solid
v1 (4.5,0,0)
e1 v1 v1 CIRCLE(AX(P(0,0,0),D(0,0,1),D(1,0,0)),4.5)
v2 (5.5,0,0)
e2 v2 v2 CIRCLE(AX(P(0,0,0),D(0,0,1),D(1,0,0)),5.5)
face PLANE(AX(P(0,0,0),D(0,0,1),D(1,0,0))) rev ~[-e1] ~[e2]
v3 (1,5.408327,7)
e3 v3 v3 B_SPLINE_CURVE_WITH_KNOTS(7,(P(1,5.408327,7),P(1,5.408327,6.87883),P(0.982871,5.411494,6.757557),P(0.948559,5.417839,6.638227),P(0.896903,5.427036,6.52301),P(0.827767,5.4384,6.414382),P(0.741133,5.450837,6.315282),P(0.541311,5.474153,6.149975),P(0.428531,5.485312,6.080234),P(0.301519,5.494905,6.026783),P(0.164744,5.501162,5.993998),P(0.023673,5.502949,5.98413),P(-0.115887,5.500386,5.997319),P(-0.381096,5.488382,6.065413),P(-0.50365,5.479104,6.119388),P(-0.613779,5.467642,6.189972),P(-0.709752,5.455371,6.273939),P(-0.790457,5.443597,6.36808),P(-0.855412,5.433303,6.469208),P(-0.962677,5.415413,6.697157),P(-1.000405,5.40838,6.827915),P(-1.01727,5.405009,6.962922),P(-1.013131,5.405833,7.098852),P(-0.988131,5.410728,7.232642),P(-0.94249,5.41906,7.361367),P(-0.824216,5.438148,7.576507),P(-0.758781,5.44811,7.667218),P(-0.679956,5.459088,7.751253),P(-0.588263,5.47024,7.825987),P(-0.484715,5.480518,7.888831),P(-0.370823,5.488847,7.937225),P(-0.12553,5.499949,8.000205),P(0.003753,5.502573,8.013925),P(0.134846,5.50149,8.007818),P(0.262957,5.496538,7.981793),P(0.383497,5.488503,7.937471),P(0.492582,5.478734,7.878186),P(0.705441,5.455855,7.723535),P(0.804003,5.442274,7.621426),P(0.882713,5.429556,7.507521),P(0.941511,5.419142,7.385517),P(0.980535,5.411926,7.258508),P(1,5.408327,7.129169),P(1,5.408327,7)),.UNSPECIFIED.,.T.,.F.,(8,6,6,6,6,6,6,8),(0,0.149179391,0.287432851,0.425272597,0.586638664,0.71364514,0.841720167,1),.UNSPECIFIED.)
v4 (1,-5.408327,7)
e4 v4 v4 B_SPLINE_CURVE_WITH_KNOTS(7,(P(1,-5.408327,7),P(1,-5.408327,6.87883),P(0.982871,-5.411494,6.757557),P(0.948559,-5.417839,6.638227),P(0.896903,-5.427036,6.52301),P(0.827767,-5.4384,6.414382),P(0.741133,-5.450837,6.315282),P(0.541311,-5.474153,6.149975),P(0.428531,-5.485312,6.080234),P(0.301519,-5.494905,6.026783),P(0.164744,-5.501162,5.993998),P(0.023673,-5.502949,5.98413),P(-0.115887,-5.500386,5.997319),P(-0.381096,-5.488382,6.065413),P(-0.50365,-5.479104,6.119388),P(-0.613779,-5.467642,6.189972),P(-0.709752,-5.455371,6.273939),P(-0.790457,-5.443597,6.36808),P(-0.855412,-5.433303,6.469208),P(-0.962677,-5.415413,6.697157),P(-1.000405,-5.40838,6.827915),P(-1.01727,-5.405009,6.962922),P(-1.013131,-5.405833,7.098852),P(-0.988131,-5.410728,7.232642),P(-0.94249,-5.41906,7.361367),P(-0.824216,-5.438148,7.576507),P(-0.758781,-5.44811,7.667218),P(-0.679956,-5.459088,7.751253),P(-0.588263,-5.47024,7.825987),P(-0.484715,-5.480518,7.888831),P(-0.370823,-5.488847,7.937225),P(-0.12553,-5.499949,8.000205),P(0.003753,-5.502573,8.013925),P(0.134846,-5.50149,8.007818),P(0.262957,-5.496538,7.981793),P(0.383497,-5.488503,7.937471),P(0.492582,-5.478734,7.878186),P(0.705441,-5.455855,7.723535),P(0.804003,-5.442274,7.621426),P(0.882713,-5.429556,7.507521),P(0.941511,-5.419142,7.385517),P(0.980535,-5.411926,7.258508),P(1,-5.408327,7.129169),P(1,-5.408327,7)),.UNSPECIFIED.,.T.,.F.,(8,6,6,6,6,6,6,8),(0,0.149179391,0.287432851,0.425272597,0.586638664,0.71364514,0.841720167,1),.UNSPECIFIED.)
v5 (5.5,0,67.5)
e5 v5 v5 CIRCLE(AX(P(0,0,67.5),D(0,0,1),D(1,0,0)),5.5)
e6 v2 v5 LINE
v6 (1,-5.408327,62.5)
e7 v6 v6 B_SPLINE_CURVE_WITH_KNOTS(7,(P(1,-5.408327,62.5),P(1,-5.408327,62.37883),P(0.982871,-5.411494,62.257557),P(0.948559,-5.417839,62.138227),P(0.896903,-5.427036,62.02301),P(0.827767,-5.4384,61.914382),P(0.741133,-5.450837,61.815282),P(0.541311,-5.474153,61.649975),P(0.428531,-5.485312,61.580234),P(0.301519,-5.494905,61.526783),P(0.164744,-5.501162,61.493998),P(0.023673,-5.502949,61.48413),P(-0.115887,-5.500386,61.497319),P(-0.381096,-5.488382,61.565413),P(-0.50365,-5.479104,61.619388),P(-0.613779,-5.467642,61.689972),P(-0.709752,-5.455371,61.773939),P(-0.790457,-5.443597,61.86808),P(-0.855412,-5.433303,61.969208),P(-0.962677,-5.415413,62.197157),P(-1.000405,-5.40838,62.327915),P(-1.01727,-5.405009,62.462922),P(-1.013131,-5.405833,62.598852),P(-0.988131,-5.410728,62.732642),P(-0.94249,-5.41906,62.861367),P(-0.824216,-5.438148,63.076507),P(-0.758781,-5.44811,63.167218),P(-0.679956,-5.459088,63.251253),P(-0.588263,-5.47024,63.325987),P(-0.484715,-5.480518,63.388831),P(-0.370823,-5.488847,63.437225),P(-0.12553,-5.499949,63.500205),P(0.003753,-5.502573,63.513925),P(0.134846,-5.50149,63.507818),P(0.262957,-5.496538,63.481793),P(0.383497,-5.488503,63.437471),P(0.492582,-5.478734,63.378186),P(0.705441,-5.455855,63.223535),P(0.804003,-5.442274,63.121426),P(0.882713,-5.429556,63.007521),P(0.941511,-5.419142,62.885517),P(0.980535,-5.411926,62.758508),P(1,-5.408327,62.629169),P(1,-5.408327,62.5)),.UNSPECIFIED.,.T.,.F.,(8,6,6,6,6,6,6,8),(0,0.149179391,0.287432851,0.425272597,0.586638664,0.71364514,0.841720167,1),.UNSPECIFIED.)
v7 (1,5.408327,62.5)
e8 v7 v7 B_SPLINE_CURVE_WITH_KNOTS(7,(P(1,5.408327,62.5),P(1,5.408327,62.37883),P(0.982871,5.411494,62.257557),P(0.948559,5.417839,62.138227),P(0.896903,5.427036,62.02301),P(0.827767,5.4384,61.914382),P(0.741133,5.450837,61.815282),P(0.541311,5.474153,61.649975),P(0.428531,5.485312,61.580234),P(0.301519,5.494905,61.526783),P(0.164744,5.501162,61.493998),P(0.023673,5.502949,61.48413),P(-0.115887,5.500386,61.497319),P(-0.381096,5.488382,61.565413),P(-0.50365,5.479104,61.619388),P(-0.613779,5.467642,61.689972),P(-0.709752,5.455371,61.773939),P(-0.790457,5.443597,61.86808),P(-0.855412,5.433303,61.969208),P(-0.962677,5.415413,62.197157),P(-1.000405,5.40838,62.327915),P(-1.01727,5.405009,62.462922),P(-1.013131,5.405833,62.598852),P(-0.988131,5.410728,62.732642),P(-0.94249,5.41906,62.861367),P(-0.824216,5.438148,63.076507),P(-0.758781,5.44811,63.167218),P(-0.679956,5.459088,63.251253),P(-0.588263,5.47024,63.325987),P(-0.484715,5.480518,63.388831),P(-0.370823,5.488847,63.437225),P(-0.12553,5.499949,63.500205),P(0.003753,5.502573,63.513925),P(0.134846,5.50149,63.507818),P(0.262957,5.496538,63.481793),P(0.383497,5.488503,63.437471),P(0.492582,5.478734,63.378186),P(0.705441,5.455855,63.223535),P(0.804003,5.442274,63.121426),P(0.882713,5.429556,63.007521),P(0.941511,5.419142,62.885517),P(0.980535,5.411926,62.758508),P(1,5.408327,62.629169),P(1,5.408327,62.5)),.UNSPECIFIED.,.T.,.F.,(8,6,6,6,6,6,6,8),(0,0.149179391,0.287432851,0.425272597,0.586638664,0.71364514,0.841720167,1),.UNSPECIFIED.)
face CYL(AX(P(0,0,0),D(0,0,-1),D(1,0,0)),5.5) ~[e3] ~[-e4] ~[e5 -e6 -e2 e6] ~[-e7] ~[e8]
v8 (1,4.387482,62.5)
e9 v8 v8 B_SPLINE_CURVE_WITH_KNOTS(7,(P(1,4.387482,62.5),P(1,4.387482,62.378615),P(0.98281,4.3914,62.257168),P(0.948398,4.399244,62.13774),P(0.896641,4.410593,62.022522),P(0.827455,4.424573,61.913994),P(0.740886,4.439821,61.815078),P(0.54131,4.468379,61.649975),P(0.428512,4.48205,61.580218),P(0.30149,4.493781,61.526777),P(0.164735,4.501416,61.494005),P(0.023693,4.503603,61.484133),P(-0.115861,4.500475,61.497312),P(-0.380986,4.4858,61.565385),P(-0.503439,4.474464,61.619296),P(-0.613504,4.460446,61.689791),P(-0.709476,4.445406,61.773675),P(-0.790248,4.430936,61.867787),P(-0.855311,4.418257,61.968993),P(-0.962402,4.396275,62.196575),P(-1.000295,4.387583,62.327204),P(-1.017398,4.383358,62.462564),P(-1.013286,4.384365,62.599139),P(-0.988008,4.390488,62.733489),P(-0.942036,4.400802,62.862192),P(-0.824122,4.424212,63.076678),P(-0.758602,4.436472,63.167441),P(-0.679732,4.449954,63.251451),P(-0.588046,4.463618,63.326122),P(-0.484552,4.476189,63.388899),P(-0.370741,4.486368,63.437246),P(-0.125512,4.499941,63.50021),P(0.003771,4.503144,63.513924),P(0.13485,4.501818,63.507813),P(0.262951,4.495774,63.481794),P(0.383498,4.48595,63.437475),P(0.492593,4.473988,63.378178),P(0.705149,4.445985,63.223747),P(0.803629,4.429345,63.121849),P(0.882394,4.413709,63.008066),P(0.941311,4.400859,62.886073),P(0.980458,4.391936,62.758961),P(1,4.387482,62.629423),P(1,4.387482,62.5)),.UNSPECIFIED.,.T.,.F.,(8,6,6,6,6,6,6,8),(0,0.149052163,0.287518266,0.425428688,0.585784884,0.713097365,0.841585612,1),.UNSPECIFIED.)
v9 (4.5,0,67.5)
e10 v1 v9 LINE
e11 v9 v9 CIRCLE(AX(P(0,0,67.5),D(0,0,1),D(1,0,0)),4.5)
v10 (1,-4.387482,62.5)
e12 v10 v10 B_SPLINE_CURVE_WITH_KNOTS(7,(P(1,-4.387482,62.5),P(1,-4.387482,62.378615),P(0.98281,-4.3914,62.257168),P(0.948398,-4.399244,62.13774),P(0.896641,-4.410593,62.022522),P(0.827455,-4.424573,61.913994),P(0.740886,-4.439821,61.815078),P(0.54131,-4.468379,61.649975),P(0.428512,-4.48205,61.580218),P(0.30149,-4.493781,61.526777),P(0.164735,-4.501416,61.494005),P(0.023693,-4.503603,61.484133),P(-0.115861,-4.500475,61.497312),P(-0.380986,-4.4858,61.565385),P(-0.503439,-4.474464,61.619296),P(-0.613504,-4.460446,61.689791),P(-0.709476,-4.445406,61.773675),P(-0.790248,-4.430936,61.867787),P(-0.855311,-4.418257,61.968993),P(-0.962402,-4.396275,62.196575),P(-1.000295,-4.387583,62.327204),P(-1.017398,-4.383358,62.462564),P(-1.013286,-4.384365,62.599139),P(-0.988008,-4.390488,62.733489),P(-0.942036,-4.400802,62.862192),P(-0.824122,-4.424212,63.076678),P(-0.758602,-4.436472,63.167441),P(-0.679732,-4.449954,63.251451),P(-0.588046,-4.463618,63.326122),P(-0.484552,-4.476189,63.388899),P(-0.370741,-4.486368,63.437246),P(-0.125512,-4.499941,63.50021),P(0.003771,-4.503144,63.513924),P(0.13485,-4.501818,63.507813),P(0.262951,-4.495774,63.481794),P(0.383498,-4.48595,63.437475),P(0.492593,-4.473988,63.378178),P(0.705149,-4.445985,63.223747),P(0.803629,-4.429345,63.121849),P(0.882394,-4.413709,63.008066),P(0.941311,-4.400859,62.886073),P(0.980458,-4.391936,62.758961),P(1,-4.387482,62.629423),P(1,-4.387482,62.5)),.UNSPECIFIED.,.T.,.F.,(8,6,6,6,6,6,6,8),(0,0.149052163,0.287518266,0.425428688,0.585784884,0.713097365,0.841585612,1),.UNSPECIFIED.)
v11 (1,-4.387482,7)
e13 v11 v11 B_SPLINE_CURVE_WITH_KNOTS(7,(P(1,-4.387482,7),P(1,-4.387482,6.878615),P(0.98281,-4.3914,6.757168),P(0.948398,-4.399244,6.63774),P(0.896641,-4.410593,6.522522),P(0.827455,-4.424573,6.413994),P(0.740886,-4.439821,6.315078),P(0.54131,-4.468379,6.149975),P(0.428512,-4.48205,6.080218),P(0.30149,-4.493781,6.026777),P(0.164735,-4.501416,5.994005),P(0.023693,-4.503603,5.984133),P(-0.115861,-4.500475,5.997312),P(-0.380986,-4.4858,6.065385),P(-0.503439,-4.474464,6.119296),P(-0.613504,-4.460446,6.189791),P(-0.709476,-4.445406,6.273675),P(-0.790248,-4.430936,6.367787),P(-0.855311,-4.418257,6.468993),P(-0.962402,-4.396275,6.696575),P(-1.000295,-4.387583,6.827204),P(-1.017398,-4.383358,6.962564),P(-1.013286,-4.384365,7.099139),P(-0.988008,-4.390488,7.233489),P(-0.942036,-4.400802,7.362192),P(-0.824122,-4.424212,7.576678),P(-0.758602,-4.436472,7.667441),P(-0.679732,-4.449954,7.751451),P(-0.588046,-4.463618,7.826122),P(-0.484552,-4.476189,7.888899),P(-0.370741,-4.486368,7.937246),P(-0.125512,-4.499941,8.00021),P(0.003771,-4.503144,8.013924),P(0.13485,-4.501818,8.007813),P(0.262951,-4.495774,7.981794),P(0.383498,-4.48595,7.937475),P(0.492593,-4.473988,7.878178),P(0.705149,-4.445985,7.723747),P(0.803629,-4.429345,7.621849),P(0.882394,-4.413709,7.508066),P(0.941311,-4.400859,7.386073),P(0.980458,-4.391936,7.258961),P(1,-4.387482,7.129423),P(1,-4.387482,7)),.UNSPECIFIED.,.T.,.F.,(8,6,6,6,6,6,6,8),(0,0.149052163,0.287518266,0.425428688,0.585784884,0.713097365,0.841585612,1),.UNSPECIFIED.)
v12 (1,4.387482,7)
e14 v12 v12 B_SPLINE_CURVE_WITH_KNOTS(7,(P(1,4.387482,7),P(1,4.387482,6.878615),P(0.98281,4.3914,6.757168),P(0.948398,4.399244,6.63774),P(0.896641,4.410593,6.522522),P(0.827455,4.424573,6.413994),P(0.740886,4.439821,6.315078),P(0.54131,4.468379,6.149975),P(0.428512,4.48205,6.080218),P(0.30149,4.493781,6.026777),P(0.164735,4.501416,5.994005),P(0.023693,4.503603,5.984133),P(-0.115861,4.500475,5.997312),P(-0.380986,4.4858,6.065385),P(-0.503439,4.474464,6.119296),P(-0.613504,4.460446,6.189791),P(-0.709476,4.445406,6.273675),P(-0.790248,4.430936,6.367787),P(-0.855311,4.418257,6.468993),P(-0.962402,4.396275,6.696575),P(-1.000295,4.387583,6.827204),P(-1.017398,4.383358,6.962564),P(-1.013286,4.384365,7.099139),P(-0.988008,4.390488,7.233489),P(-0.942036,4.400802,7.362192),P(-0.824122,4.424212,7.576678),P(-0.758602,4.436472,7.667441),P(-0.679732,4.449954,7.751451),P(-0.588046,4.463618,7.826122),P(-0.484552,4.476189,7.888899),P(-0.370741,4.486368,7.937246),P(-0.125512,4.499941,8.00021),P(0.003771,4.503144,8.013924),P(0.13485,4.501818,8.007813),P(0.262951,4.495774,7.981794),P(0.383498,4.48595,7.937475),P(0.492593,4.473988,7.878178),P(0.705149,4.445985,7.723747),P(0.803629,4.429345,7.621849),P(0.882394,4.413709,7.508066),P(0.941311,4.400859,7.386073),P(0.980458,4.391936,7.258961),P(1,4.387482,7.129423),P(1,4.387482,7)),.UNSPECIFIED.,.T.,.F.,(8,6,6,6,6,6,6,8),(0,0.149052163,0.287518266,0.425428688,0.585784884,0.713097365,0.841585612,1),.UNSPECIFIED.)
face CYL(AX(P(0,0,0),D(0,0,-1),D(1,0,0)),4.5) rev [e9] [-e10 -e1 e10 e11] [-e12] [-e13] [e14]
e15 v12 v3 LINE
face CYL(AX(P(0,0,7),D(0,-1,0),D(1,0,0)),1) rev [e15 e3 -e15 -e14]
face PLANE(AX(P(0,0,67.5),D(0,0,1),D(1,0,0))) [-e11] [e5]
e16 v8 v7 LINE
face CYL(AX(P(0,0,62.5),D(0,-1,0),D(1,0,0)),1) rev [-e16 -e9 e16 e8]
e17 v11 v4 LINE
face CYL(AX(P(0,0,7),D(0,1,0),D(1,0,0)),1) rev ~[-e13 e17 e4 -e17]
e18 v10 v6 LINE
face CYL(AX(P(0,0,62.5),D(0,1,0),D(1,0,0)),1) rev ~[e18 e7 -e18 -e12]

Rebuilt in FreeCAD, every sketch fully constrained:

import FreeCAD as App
import Part
import Sketcher
from FreeCAD import Vector
Q = App.Units.Quantity

doc = App.newDocument("Part")
body = doc.addObject("PartDesign::Body", "Body")

# Sketch on XY plane
sketch1 = body.newObject("Sketcher::SketchObject", "Sketch")
sketch1.AttachmentSupport = (doc.getObject("XY_Plane"), [""])
sketch1.MapMode = "FlatFace"
sketch1.addGeometry(Part.Circle(Vector(0, 0, 0), Vector(0, 0, 1), 5.5), False)
sketch1.addGeometry(Part.Circle(Vector(0, 0, 0), Vector(0, 0, 1), 4.5), False)
sketch1.addConstraint(Sketcher.Constraint("Coincident", 0, 3, -1, 1))
sketch1.addConstraint(Sketcher.Constraint("Coincident", 1, 3, -1, 1))
sketch1.addConstraint(Sketcher.Constraint("Diameter", 0, Q("11 mm")))
sketch1.addConstraint(Sketcher.Constraint("Diameter", 1, Q("9 mm")))
pad1 = body.newObject("PartDesign::Pad", "Pad")
pad1.Profile = sketch1
pad1.Length = 67.5

# Sketch on XZ plane
sketch2 = body.newObject("Sketcher::SketchObject", "Sketch001")
sketch2.AttachmentSupport = (doc.getObject("XZ_Plane"), [""])
sketch2.MapMode = "FlatFace"
sketch2.addGeometry(Part.Circle(Vector(0, 7, 0), Vector(0, 0, 1), 1), False)
sketch2.addConstraint(Sketcher.Constraint("PointOnObject", 0, 3, -2))
sketch2.addConstraint(Sketcher.Constraint("Diameter", 0, Q("2 mm")))
sketch2.addConstraint(Sketcher.Constraint("DistanceY", -1, 1, 0, 3, Q("7 mm")))
pocket1 = body.newObject("PartDesign::Pocket", "Pocket")
pocket1.Profile = sketch2
pocket1.Type = "ThroughAll"
pocket1.Midplane = True

# Sketch on XZ plane
sketch3 = body.newObject("Sketcher::SketchObject", "Sketch002")
sketch3.AttachmentSupport = (doc.getObject("XZ_Plane"), [""])
sketch3.MapMode = "FlatFace"
sketch3.addGeometry(Part.Circle(Vector(0, 62.5, 0), Vector(0, 0, 1), 1), False)
sketch3.addConstraint(Sketcher.Constraint("PointOnObject", 0, 3, -2))
sketch3.addConstraint(Sketcher.Constraint("Diameter", 0, Q("2 mm")))
sketch3.addConstraint(Sketcher.Constraint("DistanceY", -1, 1, 0, 3, Q("62.5 mm")))
pocket2 = body.newObject("PartDesign::Pocket", "Pocket001")
pocket2.Profile = sketch3
pocket2.Type = "ThroughAll"
pocket2.Midplane = True

doc.recompute()
